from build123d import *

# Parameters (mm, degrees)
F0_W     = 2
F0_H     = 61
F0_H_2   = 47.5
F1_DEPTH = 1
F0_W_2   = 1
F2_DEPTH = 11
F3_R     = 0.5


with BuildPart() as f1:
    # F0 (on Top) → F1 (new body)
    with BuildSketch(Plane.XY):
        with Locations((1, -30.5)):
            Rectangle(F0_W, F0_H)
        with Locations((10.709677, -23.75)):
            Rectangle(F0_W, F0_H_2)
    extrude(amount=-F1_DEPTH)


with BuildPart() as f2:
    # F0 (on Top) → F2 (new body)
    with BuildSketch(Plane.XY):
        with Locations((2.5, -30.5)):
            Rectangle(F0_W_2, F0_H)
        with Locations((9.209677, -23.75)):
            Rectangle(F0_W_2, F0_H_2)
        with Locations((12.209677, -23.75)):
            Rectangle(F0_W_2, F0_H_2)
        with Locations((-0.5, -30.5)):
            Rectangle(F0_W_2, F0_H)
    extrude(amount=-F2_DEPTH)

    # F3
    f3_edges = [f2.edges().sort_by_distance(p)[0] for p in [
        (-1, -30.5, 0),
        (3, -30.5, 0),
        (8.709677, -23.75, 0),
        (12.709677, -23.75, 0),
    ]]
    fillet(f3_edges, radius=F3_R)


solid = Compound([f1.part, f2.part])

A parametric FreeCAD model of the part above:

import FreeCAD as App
import Part
import Sketcher
Q = App.Units.Quantity


def edges_at(feature, points):
    """Names of the edges that pass closest to the given points."""
    edges = feature.Shape.Edges
    near = lambda p: min(range(len(edges)), key=lambda i: edges[i].distToShape(Part.Vertex(*p))[0])
    return sorted({f"Edge{near(p) + 1}" for p in points})


def add_polygon(sketch, points):
    """Adds a closed chain of lines whose ends are joined by coincident constraints."""
    first, n = sketch.GeometryCount, len(points)
    for a, b in zip(points, points[1:] + points[:1]):
        sketch.addGeometry(Part.LineSegment(App.Vector(*a, 0), App.Vector(*b, 0)), False)
    for i in range(n):
        sketch.addConstraint(Sketcher.Constraint("Coincident", first + i, 2, first + (i + 1) % n, 1))

doc = App.newDocument("Part")
params = doc.addObject("Spreadsheet::Sheet", "Params")
for row, (alias, value) in enumerate([
    ("sketch1_width", "2 mm"),
    ("sketch1_height", "61 mm"),
    ("sketch1_height2", "47.5 mm"),
    ("pad1_length", "1 mm"),
    ("sketch2_width", "1 mm"),
    ("sketch2_height", "61 mm"),
    ("sketch2_height2", "47.5 mm"),
    ("pad2_length", "11 mm"),
    ("fillet_radius", "0.5 mm"),
], start=1):
    params.set(f"A{row}", alias)
    params.set(f"B{row}", "=" + value)
    params.setAlias(f"B{row}", alias)

body = doc.addObject("PartDesign::Body", "Body")
body.AllowCompound = True

# Sketch on XY plane
sketch1 = doc.addObject("Sketcher::SketchObject", "Sketch")
body.addObject(sketch1)
sketch1.AttachmentSupport = (doc.XY_Plane, [""])
sketch1.MapMode = "FlatFace"
add_polygon(sketch1, [(0, 0), (0, -61), (2, -61), (2, 0)])  # lines 0-3
add_polygon(sketch1, [(9.7, 0), (9.7, -47.5), (11.7, -47.5), (11.7, 0)])  # lines 4-7
sketch1.addConstraint([
    Sketcher.Constraint("Vertical", 0),
    Sketcher.Constraint("Horizontal", 1),
    Sketcher.Constraint("Vertical", 2),
    Sketcher.Constraint("Horizontal", 3),
    Sketcher.Constraint("Vertical", 4),
    Sketcher.Constraint("Horizontal", 5),
    Sketcher.Constraint("Vertical", 6),
    Sketcher.Constraint("Horizontal", 7),
    Sketcher.Constraint("Coincident", 3, 2, -1, 1),
    Sketcher.Constraint("PointOnObject", 6, 2, -1),
    Sketcher.Constraint("Equal", 3, 5),
    Sketcher.Constraint("DistanceX", 1, 1, 1, 2, Q("2 mm")),
    Sketcher.Constraint("DistanceY", 0, 2, 0, 1, Q("61 mm")),
    Sketcher.Constraint("DistanceY", 4, 2, 4, 1, Q("47.5 mm")),
    Sketcher.Constraint("DistanceX", -1, 1, 4, 2, Q("9.709677 mm")),
])
sketch1.setExpression("Constraints[19]", "Params.sketch1_width")
sketch1.setExpression("Constraints[20]", "Params.sketch1_height")
sketch1.setExpression("Constraints[21]", "Params.sketch1_height2")
pad1 = doc.addObject("PartDesign::Pad", "Pad")
body.addObject(pad1)
pad1.Profile = sketch1
pad1.setExpression("Length", "Params.pad1_length")
pad1.Reversed = True
body2 = doc.addObject("PartDesign::Body", "Body001")
body2.AllowCompound = True

# Sketch on XY plane
sketch2 = doc.addObject("Sketcher::SketchObject", "Sketch001")
body2.addObject(sketch2)
sketch2.AttachmentSupport = (doc.getObject("XY_Plane001"), [""])
sketch2.MapMode = "FlatFace"
add_polygon(sketch2, [(2, 0), (2, -61), (3, -61), (3, 0)])  # lines 0-3
add_polygon(sketch2, [(8.7, 0), (8.7, -47.5), (9.7, -47.5), (9.7, 0)])  # lines 4-7
add_polygon(sketch2, [(11.7, 0), (11.7, -47.5), (12.7, -47.5), (12.7, 0)])  # lines 8-11
add_polygon(sketch2, [(-1, 0), (-1, -61), (0, -61), (0, 0)])  # lines 12-15
sketch2.addConstraint([
    Sketcher.Constraint("Vertical", 0),
    Sketcher.Constraint("Horizontal", 1),
    Sketcher.Constraint("Vertical", 2),
    Sketcher.Constraint("Horizontal", 3),
    Sketcher.Constraint("Vertical", 4),
    Sketcher.Constraint("Horizontal", 5),
    Sketcher.Constraint("Vertical", 6),
    Sketcher.Constraint("Horizontal", 7),
    Sketcher.Constraint("Vertical", 8),
    Sketcher.Constraint("Horizontal", 9),
    Sketcher.Constraint("Vertical", 10),
    Sketcher.Constraint("Horizontal", 11),
    Sketcher.Constraint("Vertical", 12),
    Sketcher.Constraint("Horizontal", 13),
    Sketcher.Constraint("Vertical", 14),
    Sketcher.Constraint("Horizontal", 15),
    Sketcher.Constraint("Coincident", 14, 2, -1, 1),
    Sketcher.Constraint("PointOnObject", 2, 2, -1),
    Sketcher.Constraint("PointOnObject", 6, 2, -1),
    Sketcher.Constraint("PointOnObject", 10, 2, -1),
    Sketcher.Constraint("Horizontal", 5, 2, 8, 2),
    Sketcher.Constraint("Horizontal", 1, 2, 12, 2),
    Sketcher.Constraint("Equal", 3, 5),
    Sketcher.Constraint("Equal", 7, 9),
    Sketcher.Constraint("Equal", 11, 13),
    Sketcher.Constraint("DistanceX", 1, 1, 1, 2, Q("1 mm")),
    Sketcher.Constraint("DistanceY", 0, 2, 0, 1, Q("61 mm")),
    Sketcher.Constraint("DistanceY", 4, 2, 4, 1, Q("47.5 mm")),
    Sketcher.Constraint("DistanceX", -1, 1, 0, 2, Q("2 mm")),
    Sketcher.Constraint("DistanceX", 5, 2, 8, 2, Q("2 mm")),
    Sketcher.Constraint("DistanceX", -1, 1, 4, 2, Q("8.709677 mm")),
])
sketch2.setExpression("Constraints[41]", "Params.sketch2_width")
sketch2.setExpression("Constraints[42]", "Params.sketch2_height")
sketch2.setExpression("Constraints[43]", "Params.sketch2_height2")
pad2 = doc.addObject("PartDesign::Pad", "Pad001")
body2.addObject(pad2)
pad2.Profile = sketch2
pad2.setExpression("Length", "Params.pad2_length")
pad2.Reversed = True
doc.recompute()

fillet = doc.addObject("PartDesign::Fillet", "Fillet")
body2.addObject(fillet)
fillet.Base = (pad2, edges_at(pad2, [
    (-1, -30.5, 0),
    (3, -30.5, 0),
    (8.71, -23.75, 0),
    (12.71, -23.75, 0),
]))
fillet.setExpression("Radius", "Params.fillet_radius")

doc.recompute()
